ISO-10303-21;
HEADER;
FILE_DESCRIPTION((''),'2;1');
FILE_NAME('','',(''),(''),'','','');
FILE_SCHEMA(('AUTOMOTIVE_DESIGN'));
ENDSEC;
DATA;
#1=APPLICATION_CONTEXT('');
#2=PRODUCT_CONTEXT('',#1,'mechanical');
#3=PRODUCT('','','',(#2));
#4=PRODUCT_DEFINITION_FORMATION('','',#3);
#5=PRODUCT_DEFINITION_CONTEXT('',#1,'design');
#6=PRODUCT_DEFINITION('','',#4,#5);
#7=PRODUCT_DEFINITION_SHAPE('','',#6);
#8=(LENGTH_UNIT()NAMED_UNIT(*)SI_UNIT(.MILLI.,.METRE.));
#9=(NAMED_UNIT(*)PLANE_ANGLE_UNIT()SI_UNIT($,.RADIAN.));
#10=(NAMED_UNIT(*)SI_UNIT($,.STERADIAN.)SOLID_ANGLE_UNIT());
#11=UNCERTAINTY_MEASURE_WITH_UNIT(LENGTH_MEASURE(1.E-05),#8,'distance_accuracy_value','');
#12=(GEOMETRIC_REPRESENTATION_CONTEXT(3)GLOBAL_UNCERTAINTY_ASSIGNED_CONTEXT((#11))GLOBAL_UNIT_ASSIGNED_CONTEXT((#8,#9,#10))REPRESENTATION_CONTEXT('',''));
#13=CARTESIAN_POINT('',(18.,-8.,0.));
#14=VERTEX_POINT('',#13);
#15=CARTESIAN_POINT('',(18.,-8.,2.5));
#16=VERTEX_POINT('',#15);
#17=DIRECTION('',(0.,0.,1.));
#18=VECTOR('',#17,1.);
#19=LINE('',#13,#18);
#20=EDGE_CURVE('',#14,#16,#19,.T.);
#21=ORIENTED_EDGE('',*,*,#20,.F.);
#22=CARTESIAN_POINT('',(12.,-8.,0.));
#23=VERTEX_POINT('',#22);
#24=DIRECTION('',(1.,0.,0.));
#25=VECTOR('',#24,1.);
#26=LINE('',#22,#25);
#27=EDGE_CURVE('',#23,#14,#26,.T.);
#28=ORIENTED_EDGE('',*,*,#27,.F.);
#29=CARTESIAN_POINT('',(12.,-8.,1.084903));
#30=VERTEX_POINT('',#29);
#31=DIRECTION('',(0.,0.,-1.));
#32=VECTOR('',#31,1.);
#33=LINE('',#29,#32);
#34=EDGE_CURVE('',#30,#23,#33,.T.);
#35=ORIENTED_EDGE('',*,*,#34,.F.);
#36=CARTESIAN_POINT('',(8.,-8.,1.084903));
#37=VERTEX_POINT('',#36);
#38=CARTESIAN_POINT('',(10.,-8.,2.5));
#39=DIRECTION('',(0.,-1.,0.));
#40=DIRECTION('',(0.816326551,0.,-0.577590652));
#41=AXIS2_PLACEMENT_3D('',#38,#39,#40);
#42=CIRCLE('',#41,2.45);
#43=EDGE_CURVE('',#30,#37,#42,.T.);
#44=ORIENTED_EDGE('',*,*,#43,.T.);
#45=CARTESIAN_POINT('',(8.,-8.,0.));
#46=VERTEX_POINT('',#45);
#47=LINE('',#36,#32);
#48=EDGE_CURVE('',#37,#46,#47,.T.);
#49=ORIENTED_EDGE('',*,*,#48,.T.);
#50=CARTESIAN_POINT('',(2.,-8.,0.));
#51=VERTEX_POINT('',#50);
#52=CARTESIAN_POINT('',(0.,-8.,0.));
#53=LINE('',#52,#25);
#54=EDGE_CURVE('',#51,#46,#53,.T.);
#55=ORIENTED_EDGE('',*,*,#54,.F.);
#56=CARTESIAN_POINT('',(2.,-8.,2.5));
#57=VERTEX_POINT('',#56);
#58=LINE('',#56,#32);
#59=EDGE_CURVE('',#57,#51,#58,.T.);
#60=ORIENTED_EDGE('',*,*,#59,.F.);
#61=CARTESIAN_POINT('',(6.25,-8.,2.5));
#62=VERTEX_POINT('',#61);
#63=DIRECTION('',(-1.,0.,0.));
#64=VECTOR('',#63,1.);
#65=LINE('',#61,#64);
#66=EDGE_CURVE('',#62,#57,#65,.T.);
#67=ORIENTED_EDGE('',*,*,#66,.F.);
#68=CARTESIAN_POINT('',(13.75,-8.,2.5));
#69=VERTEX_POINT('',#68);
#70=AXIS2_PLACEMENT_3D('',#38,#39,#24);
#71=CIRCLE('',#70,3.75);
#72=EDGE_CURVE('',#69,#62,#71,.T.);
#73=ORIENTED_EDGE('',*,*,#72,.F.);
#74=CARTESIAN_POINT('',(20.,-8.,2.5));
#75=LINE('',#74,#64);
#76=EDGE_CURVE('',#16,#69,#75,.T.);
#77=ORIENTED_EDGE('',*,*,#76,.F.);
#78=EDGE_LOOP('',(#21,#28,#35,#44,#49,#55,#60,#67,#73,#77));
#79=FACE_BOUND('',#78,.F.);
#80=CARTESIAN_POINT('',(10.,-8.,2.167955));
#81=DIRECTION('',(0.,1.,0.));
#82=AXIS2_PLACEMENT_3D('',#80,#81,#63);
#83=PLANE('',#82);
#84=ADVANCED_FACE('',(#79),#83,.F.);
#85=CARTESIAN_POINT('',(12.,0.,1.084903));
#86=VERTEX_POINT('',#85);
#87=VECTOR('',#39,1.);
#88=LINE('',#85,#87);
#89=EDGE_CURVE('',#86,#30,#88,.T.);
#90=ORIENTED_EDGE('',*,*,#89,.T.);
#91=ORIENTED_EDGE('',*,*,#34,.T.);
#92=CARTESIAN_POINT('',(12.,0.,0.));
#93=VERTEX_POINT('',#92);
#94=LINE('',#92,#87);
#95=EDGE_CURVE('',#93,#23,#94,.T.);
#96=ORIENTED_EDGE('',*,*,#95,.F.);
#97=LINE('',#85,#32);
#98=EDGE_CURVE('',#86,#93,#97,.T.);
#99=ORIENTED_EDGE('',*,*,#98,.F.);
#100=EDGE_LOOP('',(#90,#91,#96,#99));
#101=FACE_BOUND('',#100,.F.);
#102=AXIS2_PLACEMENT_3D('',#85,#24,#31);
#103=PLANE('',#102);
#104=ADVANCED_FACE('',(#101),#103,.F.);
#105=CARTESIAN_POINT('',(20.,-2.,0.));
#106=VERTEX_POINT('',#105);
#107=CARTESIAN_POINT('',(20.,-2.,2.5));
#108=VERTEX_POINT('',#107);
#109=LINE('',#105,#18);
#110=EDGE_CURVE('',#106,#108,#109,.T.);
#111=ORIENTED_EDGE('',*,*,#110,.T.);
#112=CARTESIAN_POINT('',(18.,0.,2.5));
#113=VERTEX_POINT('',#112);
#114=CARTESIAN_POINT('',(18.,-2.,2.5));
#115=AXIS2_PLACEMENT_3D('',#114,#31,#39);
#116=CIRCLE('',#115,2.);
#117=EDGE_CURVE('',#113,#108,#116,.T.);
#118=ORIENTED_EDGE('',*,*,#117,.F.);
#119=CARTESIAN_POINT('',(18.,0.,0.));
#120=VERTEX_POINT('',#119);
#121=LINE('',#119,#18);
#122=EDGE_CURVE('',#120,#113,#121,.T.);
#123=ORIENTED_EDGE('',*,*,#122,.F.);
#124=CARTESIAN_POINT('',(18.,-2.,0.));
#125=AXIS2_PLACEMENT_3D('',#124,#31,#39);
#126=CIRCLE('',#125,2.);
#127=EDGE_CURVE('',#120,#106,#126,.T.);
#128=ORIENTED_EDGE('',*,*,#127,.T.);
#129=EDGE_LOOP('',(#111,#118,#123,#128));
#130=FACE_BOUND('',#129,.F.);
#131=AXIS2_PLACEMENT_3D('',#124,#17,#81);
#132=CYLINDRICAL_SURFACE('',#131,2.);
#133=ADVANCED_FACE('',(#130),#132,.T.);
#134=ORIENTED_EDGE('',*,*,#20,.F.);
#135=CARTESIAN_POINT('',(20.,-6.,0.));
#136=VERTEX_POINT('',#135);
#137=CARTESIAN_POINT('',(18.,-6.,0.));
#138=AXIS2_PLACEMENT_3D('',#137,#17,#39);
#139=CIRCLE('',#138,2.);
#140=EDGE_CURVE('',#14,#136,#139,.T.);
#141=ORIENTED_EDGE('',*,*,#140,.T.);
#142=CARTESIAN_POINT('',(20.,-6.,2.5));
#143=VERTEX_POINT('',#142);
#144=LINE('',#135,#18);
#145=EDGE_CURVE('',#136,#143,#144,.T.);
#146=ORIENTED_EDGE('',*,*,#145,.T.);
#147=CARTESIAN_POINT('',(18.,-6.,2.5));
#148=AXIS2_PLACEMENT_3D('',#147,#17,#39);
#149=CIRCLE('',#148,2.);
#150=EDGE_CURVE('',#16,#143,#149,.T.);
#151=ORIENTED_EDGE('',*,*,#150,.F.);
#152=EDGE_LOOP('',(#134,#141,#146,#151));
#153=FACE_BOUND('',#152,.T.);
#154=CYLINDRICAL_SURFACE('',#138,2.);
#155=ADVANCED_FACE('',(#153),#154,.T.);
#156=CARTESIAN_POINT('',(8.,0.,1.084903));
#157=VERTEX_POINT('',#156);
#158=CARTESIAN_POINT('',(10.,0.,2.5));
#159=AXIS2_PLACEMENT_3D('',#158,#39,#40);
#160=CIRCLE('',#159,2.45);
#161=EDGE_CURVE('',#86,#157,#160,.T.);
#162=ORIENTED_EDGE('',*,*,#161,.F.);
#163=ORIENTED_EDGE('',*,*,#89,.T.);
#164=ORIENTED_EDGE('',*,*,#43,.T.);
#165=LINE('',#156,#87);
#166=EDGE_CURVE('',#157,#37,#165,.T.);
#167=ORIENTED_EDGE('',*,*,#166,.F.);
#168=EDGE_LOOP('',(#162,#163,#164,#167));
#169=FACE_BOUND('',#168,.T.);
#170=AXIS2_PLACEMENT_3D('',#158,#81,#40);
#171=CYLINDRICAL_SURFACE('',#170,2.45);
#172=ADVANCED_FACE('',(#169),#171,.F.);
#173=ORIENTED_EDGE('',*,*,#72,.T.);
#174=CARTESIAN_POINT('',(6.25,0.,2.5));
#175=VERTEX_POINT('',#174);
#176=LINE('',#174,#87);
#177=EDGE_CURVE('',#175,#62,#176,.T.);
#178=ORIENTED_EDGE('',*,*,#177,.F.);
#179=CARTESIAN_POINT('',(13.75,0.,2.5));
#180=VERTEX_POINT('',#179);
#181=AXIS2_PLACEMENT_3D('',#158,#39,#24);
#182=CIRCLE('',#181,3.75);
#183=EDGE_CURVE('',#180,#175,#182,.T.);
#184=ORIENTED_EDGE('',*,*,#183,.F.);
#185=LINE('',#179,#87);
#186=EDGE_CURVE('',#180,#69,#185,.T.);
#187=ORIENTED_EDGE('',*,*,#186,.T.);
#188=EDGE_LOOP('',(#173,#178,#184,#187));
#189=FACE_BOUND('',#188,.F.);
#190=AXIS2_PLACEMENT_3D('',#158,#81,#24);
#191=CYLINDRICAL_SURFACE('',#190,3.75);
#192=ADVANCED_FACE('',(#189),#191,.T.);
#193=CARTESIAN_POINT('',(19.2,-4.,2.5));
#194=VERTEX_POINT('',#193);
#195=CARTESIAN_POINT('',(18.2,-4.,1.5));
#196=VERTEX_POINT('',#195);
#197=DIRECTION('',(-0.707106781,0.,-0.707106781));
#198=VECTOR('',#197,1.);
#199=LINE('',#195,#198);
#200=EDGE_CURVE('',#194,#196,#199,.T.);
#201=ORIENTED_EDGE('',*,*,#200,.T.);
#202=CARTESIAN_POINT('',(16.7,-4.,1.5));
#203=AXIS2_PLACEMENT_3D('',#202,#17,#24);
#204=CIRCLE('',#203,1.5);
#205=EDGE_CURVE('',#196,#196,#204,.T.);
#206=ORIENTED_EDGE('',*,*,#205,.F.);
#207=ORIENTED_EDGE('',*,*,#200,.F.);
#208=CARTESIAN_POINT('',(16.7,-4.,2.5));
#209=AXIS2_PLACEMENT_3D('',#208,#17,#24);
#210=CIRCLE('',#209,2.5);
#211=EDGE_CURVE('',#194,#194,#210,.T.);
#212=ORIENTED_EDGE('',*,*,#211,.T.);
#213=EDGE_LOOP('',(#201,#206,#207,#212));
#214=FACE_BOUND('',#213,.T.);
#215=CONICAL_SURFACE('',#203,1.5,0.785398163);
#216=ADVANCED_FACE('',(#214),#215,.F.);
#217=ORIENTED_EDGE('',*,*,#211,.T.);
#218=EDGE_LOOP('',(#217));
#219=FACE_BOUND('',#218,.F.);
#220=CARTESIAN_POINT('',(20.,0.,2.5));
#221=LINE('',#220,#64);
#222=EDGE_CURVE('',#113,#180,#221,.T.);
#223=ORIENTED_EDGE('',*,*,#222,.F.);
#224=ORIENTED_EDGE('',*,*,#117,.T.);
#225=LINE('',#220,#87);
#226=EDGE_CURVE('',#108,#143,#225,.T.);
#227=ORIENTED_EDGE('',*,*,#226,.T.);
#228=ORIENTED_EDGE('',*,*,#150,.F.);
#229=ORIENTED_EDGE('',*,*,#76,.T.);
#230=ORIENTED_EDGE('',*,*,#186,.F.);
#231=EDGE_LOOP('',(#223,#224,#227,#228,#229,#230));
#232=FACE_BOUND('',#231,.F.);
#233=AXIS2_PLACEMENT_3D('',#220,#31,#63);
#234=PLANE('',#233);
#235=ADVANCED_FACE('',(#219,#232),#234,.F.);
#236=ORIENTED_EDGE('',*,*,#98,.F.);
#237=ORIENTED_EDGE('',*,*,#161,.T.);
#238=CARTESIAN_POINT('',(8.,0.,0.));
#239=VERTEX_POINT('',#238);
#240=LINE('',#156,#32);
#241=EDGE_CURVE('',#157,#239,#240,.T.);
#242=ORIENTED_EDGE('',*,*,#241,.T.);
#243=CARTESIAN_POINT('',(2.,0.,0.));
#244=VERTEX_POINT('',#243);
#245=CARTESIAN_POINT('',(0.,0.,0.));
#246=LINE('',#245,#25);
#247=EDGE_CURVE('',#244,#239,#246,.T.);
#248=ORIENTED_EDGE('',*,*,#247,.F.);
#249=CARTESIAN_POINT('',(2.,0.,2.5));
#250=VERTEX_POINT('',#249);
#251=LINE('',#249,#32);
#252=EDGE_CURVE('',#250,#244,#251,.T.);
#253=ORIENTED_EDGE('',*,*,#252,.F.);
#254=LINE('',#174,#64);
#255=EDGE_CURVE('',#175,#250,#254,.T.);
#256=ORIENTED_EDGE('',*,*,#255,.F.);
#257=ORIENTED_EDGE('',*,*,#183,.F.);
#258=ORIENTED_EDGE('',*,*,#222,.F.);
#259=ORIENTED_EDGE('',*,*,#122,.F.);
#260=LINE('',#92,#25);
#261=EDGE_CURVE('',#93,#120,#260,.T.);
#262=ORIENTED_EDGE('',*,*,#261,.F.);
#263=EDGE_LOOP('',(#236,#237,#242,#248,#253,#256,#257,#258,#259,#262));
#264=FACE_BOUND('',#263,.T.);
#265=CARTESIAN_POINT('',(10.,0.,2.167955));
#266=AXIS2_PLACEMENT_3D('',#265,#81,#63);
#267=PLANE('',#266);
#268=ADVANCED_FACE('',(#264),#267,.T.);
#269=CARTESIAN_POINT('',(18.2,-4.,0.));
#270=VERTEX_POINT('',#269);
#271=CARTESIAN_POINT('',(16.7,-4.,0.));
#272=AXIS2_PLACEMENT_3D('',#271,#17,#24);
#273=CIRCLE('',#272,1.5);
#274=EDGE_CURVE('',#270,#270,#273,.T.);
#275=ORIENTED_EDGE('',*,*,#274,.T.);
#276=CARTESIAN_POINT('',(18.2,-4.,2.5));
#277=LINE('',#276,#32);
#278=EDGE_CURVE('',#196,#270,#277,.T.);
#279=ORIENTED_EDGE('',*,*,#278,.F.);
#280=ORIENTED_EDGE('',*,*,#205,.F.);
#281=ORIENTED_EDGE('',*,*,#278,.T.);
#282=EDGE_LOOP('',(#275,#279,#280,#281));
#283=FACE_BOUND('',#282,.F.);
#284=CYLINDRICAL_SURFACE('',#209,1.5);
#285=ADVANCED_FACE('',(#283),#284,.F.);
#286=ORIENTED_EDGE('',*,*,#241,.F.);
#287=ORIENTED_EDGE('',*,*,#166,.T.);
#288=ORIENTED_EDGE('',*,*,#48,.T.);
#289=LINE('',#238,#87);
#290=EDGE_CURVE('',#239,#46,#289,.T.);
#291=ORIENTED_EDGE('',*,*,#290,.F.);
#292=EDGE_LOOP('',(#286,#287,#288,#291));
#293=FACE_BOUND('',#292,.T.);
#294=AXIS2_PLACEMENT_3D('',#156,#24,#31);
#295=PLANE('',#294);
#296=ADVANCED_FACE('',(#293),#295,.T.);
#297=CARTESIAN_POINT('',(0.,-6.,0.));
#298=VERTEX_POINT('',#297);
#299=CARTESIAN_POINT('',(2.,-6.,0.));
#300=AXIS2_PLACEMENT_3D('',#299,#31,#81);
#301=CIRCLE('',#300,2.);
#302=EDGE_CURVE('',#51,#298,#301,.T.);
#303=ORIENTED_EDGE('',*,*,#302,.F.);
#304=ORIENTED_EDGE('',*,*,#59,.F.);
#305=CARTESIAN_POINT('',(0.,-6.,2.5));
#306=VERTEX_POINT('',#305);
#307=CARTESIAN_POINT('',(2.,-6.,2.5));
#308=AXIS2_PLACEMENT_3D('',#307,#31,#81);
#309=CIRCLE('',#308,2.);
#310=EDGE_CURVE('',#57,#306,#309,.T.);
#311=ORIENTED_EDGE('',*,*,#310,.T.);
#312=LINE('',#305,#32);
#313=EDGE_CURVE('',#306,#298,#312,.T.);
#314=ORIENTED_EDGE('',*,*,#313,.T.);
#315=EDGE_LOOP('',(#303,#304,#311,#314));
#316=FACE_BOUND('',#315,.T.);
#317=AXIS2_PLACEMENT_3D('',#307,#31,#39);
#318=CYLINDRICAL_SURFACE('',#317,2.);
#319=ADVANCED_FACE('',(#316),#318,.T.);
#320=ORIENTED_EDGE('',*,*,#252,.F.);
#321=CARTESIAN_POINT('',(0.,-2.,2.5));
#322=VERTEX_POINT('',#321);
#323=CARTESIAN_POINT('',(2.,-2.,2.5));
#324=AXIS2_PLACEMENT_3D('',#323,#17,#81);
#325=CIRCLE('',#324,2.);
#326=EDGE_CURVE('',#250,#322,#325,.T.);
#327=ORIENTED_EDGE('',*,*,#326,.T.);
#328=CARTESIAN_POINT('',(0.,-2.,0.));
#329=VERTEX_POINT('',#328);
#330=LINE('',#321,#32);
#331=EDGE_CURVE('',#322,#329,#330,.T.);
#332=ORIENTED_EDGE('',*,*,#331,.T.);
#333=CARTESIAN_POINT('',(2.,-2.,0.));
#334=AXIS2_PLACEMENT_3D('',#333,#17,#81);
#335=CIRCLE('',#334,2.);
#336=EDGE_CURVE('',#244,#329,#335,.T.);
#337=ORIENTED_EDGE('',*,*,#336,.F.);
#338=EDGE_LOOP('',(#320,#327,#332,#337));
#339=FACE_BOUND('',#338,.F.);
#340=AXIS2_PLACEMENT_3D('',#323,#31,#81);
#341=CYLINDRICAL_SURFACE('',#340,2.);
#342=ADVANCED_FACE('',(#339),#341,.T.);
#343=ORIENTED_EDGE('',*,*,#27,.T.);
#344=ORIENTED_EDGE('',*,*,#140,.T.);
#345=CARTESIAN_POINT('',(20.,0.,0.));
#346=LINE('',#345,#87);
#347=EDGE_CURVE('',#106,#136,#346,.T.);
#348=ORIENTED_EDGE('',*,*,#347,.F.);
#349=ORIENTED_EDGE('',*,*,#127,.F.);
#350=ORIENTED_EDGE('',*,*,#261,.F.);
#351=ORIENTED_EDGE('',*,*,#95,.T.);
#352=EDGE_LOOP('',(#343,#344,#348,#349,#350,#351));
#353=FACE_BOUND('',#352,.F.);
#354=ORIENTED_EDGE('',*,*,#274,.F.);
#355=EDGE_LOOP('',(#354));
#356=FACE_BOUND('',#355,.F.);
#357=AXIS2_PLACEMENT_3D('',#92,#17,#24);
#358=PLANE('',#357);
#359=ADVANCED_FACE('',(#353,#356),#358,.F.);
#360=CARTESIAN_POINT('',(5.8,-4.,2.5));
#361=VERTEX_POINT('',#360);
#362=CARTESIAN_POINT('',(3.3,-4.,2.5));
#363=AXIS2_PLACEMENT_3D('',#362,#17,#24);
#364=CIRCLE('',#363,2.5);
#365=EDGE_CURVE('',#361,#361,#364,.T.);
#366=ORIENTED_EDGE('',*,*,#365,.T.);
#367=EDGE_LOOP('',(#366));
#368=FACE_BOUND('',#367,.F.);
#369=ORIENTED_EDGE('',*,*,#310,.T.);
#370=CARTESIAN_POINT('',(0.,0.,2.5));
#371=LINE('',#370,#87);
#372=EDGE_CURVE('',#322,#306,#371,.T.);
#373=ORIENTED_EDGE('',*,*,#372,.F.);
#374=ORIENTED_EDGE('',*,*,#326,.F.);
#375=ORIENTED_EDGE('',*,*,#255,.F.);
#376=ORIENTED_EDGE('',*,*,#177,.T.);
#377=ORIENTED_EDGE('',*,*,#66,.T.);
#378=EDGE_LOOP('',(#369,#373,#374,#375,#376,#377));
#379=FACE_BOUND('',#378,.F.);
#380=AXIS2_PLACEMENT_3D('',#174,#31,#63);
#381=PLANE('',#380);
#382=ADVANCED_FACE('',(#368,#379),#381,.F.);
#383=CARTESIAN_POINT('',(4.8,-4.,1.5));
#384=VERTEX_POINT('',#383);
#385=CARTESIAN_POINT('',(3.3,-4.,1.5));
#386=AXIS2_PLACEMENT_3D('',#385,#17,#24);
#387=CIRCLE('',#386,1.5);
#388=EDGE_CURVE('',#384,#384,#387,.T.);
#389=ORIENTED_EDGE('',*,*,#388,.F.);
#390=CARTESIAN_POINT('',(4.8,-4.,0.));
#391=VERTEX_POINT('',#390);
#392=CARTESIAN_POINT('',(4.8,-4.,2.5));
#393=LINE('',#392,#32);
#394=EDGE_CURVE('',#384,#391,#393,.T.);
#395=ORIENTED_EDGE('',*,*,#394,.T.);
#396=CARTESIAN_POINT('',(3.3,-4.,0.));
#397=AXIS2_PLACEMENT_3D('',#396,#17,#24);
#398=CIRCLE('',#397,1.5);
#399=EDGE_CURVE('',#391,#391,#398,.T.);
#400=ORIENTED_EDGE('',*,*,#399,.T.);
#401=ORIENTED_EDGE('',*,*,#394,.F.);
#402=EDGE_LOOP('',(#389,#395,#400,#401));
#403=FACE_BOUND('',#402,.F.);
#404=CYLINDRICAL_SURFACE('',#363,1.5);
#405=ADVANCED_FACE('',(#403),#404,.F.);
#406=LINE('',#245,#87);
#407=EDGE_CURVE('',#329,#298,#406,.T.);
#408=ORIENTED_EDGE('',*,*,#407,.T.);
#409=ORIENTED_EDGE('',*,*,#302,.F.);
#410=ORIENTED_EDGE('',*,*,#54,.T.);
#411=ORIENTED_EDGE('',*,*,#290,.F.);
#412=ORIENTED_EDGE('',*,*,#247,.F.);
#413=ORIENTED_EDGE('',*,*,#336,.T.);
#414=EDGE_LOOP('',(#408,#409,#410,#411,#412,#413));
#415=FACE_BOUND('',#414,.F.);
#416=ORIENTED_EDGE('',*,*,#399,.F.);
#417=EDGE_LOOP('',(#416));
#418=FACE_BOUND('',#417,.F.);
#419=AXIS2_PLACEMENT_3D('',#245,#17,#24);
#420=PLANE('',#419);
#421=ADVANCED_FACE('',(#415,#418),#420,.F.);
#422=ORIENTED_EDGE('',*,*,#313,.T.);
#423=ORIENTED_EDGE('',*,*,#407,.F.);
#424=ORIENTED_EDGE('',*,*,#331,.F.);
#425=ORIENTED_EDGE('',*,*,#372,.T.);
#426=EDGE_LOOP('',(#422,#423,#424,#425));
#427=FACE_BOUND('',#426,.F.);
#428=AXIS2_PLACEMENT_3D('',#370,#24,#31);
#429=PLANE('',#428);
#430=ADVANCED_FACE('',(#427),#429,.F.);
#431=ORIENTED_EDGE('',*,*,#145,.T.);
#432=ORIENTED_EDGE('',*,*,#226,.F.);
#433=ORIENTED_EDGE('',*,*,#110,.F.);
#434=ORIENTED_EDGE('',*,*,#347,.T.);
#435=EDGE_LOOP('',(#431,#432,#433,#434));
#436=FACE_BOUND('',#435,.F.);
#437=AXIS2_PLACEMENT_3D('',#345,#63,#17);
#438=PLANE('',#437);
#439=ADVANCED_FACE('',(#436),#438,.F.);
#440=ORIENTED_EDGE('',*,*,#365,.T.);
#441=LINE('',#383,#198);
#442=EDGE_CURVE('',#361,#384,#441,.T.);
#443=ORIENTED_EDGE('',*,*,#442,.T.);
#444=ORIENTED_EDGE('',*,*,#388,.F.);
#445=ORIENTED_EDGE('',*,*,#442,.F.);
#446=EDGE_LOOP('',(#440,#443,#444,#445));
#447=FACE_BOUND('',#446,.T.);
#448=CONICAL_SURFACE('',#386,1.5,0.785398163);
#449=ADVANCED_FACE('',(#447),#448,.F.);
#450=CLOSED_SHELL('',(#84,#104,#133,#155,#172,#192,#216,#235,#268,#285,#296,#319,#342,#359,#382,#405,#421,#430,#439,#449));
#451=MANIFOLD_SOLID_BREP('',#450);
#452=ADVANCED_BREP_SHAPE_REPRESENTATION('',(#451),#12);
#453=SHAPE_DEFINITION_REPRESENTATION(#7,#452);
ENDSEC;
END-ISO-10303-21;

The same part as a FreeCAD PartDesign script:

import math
import FreeCAD as App
import Part
import Sketcher
Q = App.Units.Quantity


def edges_at(feature, points):
    """Names of the edges that pass closest to the given points."""
    edges = feature.Shape.Edges
    near = lambda p: min(range(len(edges)), key=lambda i: edges[i].distToShape(Part.Vertex(*p))[0])
    return sorted({f"Edge{near(p) + 1}" for p in points})

doc = App.newDocument("Part")
body = doc.addObject("PartDesign::Body", "Body")

# Sketch on XZ plane
sketch1 = doc.addObject("Sketcher::SketchObject", "Sketch")
body.addObject(sketch1)
sketch1.AttachmentSupport = (doc.XZ_Plane, [""])
sketch1.MapMode = "FlatFace"
sketch1.addGeometry([
    Part.ArcOfCircle(Part.Circle(App.Vector(10, 2.5, 0), App.Vector(0, 0, 1), 2.4), math.radians(-35), math.radians(215)),  # 0
    Part.LineSegment(App.Vector(12, 1.1, 0), App.Vector(12, 0, 0)),  # 1
    Part.LineSegment(App.Vector(12, 0, 0), App.Vector(20, 0, 0)),  # 2
    Part.LineSegment(App.Vector(20, 0, 0), App.Vector(20, 2.5, 0)),  # 3
    Part.LineSegment(App.Vector(20, 2.5, 0), App.Vector(13.8, 2.5, 0)),  # 4
    Part.ArcOfCircle(Part.Circle(App.Vector(10, 2.5, 0), App.Vector(0, 0, 1), 3.8), math.radians(0), math.radians(180)),  # 5
    Part.LineSegment(App.Vector(6.2, 2.5, 0), App.Vector(0, 2.5, 0)),  # 6
    Part.LineSegment(App.Vector(0, 2.5, 0), App.Vector(0, 0, 0)),  # 7
    Part.LineSegment(App.Vector(0, 0, 0), App.Vector(8, 0, 0)),  # 8
    Part.LineSegment(App.Vector(8, 0, 0), App.Vector(8, 1.1, 0)),  # 9
], False)
sketch1.addConstraint([
    Sketcher.Constraint("Coincident", 0, 1, 1, 1),
    Sketcher.Constraint("Coincident", 1, 2, 2, 1),
    Sketcher.Constraint("Coincident", 2, 2, 3, 1),
    Sketcher.Constraint("Coincident", 3, 2, 4, 1),
    Sketcher.Constraint("Coincident", 4, 2, 5, 1),
    Sketcher.Constraint("Coincident", 5, 2, 6, 1),
    Sketcher.Constraint("Coincident", 6, 2, 7, 1),
    Sketcher.Constraint("Coincident", 7, 2, 8, 1),
    Sketcher.Constraint("Coincident", 8, 2, 9, 1),
    Sketcher.Constraint("Coincident", 9, 2, 0, 2),
    Sketcher.Constraint("Vertical", 1),
    Sketcher.Constraint("Horizontal", 2),
    Sketcher.Constraint("Vertical", 3),
    Sketcher.Constraint("Horizontal", 4),
    Sketcher.Constraint("Horizontal", 6),
    Sketcher.Constraint("Vertical", 7),
    Sketcher.Constraint("Horizontal", 8),
    Sketcher.Constraint("Vertical", 9),
    Sketcher.Constraint("Coincident", 7, 2, -1, 1),
    Sketcher.Constraint("Coincident", 5, 3, 0, 3),
    Sketcher.Constraint("PointOnObject", 1, 2, -1),
    Sketcher.Constraint("Horizontal", 5, 3, 3, 2),
    Sketcher.Constraint("Horizontal", 4, 2, 5, 2),
    Sketcher.Constraint("Horizontal", 0, 1, 9, 2),
    Sketcher.Constraint("Equal", 4, 6),
    Sketcher.Constraint("DistanceX", 2, 1, 2, 2, Q("8 mm")),
    Sketcher.Constraint("Radius", 0, Q("2.45 mm")),
    Sketcher.Constraint("Radius", 5, Q("3.75 mm")),
    Sketcher.Constraint("DistanceY", 3, 1, 3, 2, Q("2.5 mm")),
    Sketcher.Constraint("DistanceX", -1, 1, 0, 3, Q("10 mm")),
])
pad1 = doc.addObject("PartDesign::Pad", "Pad")
body.addObject(pad1)
pad1.Profile = sketch1
pad1.Length = 8

# Sketch on XY plane
sketch2 = doc.addObject("Sketcher::SketchObject", "Sketch001")
body.addObject(sketch2)
sketch2.AttachmentSupport = (doc.XY_Plane, [""])
sketch2.MapMode = "FlatFace"
sketch2.AttachmentOffset = App.Placement(App.Vector(0, 0, 2.5), App.Rotation())
sketch2.addGeometry([
    Part.Circle(App.Vector(3.3, -4, 0), App.Vector(0, 0, 1), 1.5),
    Part.Circle(App.Vector(16.7, -4, 0), App.Vector(0, 0, 1), 1.5),
], False)
sketch2.addConstraint([
    Sketcher.Constraint("Equal", 0, 1),
    Sketcher.Constraint("Horizontal", 0, 3, 1, 3),
    Sketcher.Constraint("Diameter", 0, Q("3 mm")),
    Sketcher.Constraint("DistanceY", 0, 3, -1, 1, Q("4 mm")),
    Sketcher.Constraint("DistanceX", -1, 1, 0, 3, Q("3.3 mm")),
    Sketcher.Constraint("DistanceX", -1, 1, 1, 3, Q("16.7 mm")),
])
pocket1 = doc.addObject("PartDesign::Pocket", "Pocket")
body.addObject(pocket1)
pocket1.Profile = sketch2
pocket1.Type = "ThroughAll"
doc.recompute()

chamfer = doc.addObject("PartDesign::Chamfer", "Chamfer")
body.addObject(chamfer)
chamfer.Base = (pocket1, edges_at(pocket1, [(1.8, -4, 2.5), (15.2, -4, 2.5)]))
chamfer.Size = 1
doc.recompute()

fillet = doc.addObject("PartDesign::Fillet", "Fillet")
body.addObject(fillet)
fillet.Base = (chamfer, edges_at(chamfer, [
    (0, -8, 1.25),
    (20, -8, 1.25),
    (20, 0, 1.25),
    (0, 0, 1.25),
]))
fillet.Radius = 2

doc.recompute()
